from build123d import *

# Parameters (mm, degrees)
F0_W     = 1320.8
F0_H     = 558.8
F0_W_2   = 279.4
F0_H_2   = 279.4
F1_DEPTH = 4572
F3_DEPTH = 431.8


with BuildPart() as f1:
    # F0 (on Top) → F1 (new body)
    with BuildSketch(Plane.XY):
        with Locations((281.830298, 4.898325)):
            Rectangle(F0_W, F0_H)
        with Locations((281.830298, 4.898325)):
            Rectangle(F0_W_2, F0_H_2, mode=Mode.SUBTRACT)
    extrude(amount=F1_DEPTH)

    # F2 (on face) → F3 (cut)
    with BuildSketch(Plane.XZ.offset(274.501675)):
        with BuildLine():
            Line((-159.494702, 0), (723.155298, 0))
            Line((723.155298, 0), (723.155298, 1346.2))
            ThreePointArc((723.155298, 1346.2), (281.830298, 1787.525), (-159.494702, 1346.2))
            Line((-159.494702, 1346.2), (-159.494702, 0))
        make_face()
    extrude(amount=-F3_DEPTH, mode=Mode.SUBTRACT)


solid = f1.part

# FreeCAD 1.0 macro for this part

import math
import FreeCAD as App
import Part
import Sketcher
Q = App.Units.Quantity


def add_polygon(sketch, points):
    """Adds a closed chain of lines whose ends are joined by coincident constraints."""
    first, n = sketch.GeometryCount, len(points)
    for a, b in zip(points, points[1:] + points[:1]):
        sketch.addGeometry(Part.LineSegment(App.Vector(*a, 0), App.Vector(*b, 0)), False)
    for i in range(n):
        sketch.addConstraint(Sketcher.Constraint("Coincident", first + i, 2, first + (i + 1) % n, 1))

doc = App.newDocument("Part")
body = doc.addObject("PartDesign::Body", "Body")

# Sketch on XY plane
sketch1 = body.newObject("Sketcher::SketchObject", "Sketch")
sketch1.AttachmentSupport = (doc.getObject("XY_Plane"), [""])
sketch1.MapMode = "FlatFace"
add_polygon(sketch1, [(-378.569702, 284.298325), (-378.569702, -274.501675), (942.230298, -274.501675), (942.230298, 284.298325)])  # lines 0-3
add_polygon(sketch1, [(421.530298, -134.801675), (142.130298, -134.801675), (142.130298, 144.598325), (421.530298, 144.598325)])  # lines 4-7
sketch1.addConstraint(Sketcher.Constraint("Vertical", 0))
sketch1.addConstraint(Sketcher.Constraint("Horizontal", 1))
sketch1.addConstraint(Sketcher.Constraint("Vertical", 2))
sketch1.addConstraint(Sketcher.Constraint("Horizontal", 3))
sketch1.addConstraint(Sketcher.Constraint("Horizontal", 4))
sketch1.addConstraint(Sketcher.Constraint("Vertical", 5))
sketch1.addConstraint(Sketcher.Constraint("Horizontal", 6))
sketch1.addConstraint(Sketcher.Constraint("Vertical", 7))
sketch1.addConstraint(Sketcher.Constraint("Equal", 6, 5))
sketch1.addConstraint(Sketcher.Constraint("DistanceX", 1, 1, 1, 2, Q("52 in")))
sketch1.addConstraint(Sketcher.Constraint("DistanceX", 4, 2, 4, 1, Q("11 in")))
sketch1.addConstraint(Sketcher.Constraint("DistanceY", 0, 2, 0, 1, Q("22 in")))
sketch1.addConstraint(Sketcher.Constraint("DistanceX", 0, 2, 4, 2, Q("20.5 in")))
sketch1.addConstraint(Sketcher.Constraint("DistanceY", 0, 2, 4, 2, Q("5.5 in")))
sketch1.addConstraint(Sketcher.Constraint("DistanceX", 0, 2, -1, 1, 378.569702))
sketch1.addConstraint(Sketcher.Constraint("DistanceY", 0, 2, -1, 1, 274.501675))
pad1 = body.newObject("PartDesign::Pad", "Pad")
pad1.Profile = sketch1
pad1.Length = Q("180 in")

# Sketch on XZ plane
sketch2 = body.newObject("Sketcher::SketchObject", "Sketch001")
sketch2.AttachmentSupport = (doc.getObject("XZ_Plane"), [""])
sketch2.MapMode = "FlatFace"
sketch2.AttachmentOffset = App.Placement(App.Vector(0, 0, 274.501675), App.Rotation())
sketch2.addGeometry(Part.LineSegment(App.Vector(-159.494702, 0, 0), App.Vector(723.155298, 0, 0)), False)
sketch2.addGeometry(Part.LineSegment(App.Vector(723.155298, 0, 0), App.Vector(723.155298, 1346.2, 0)), False)
sketch2.addGeometry(Part.ArcOfCircle(Part.Circle(App.Vector(281.830298, 1346.2, 0), App.Vector(0, 0, 1), 441.325), math.radians(0), math.radians(180)), False)
sketch2.addGeometry(Part.LineSegment(App.Vector(-159.494702, 1346.2, 0), App.Vector(-159.494702, 0, 0)), False)
sketch2.addConstraint(Sketcher.Constraint("Coincident", 0, 2, 1, 1))
sketch2.addConstraint(Sketcher.Constraint("Tangent", 1, 2, 2, 1))
sketch2.addConstraint(Sketcher.Constraint("Tangent", 2, 2, 3, 1))
sketch2.addConstraint(Sketcher.Constraint("Coincident", 3, 2, 0, 1))
sketch2.addConstraint(Sketcher.Constraint("Horizontal", 0))
sketch2.addConstraint(Sketcher.Constraint("Vertical", 1))
sketch2.addConstraint(Sketcher.Constraint("Vertical", 3))
sketch2.addConstraint(Sketcher.Constraint("PointOnObject", 0, 2, -1))
sketch2.addConstraint(Sketcher.Constraint("DistanceY", 1, 1, 1, 2, Q("53 in")))
sketch2.addConstraint(Sketcher.Constraint("Radius", 2, Q("17.375 in")))
sketch2.addConstraint(Sketcher.Constraint("DistanceX", -1, 1, 2, 3, 281.830298))
pocket1 = body.newObject("PartDesign::Pocket", "Pocket")
pocket1.Profile = sketch2
pocket1.Length = Q("17 in")

doc.recompute()
